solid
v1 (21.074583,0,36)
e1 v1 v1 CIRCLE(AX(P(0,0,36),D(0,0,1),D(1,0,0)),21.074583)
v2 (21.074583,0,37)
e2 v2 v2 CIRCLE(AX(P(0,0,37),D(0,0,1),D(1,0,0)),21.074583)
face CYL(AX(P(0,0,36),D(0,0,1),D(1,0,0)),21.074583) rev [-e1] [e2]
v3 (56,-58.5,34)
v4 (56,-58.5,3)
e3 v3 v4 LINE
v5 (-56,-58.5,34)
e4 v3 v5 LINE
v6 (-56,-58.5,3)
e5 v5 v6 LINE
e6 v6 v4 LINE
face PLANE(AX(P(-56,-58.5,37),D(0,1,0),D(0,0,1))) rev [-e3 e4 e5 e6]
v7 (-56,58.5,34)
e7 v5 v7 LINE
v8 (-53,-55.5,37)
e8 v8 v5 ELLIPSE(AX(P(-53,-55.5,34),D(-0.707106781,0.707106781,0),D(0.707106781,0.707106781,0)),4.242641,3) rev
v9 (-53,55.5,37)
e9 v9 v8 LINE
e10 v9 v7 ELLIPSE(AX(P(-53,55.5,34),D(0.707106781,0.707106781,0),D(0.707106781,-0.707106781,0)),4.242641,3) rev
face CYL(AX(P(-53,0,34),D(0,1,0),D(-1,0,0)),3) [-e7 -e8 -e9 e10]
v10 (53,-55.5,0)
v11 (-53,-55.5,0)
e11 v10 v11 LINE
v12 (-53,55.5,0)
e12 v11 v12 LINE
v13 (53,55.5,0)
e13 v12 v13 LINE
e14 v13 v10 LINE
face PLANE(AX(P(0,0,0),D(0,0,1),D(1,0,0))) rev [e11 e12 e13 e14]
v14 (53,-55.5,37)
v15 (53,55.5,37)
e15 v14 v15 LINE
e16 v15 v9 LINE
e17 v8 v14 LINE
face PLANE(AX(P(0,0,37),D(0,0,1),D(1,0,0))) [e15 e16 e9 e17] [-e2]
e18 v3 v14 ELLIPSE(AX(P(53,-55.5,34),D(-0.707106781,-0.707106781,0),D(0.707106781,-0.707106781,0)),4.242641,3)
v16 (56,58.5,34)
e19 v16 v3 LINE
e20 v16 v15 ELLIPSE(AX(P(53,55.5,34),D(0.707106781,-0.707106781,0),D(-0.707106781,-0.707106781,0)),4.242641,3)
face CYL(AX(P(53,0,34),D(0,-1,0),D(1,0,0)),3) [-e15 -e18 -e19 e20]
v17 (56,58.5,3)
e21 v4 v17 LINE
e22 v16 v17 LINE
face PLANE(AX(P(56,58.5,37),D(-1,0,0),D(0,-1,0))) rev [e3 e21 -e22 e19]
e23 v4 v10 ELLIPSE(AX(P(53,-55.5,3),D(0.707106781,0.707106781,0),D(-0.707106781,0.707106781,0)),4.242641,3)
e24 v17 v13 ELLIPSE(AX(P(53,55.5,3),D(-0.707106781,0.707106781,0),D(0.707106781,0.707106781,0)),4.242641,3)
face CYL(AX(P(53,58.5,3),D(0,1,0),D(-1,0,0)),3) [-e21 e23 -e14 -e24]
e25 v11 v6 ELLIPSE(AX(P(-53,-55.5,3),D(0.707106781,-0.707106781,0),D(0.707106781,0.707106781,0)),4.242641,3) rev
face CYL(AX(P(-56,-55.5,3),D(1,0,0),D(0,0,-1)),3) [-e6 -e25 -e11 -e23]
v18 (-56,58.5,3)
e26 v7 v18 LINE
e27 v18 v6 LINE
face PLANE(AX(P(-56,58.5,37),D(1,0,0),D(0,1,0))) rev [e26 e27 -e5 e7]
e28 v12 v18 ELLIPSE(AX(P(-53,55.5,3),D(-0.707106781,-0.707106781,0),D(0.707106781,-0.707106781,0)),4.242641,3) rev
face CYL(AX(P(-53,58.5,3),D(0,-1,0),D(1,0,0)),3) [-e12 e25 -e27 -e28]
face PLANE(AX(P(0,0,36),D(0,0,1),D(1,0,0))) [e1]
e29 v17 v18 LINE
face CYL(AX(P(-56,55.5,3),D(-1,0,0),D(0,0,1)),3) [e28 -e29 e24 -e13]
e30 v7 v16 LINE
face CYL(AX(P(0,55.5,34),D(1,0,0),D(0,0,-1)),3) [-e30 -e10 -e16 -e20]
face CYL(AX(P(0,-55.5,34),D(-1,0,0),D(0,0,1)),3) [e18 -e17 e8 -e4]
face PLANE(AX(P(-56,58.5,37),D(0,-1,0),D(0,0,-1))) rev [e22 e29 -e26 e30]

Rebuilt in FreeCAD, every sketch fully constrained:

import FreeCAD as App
import Part
import Sketcher
Q = App.Units.Quantity


def edges_at(feature, points):
    """Names of the edges that pass closest to the given points."""
    edges = feature.Shape.Edges
    near = lambda p: min(range(len(edges)), key=lambda i: edges[i].distToShape(Part.Vertex(*p))[0])
    return sorted({f"Edge{near(p) + 1}" for p in points})

doc = App.newDocument("Part")
params = doc.addObject("Spreadsheet::Sheet", "Params")
for row, (alias, value) in enumerate([
    ("sketch1_width", "112 mm"),
    ("sketch1_height", "117 mm"),
    ("pad1_length", "37 mm"),
    ("fillet_radius", "3 mm"),
    ("fillet2_radius", "3 mm"),
    ("pocket1_length", "1 mm"),
], start=1):
    params.set(f"A{row}", alias)
    params.set(f"B{row}", "=" + value)
    params.setAlias(f"B{row}", alias)

body = doc.addObject("PartDesign::Body", "Body")

# Sketch on XY plane
sketch1 = body.newObject("Sketcher::SketchObject", "Sketch")
sketch1.AttachmentSupport = (doc.getObject("XY_Plane"), [""])
sketch1.MapMode = "FlatFace"
sketch1.addGeometry([
    Part.LineSegment(App.Vector(-56, 58, 0), App.Vector(-56, -58, 0)),
    Part.LineSegment(App.Vector(-56, -58, 0), App.Vector(56, -58, 0)),
    Part.LineSegment(App.Vector(56, -58, 0), App.Vector(56, 58, 0)),
    Part.LineSegment(App.Vector(56, 58, 0), App.Vector(-56, 58, 0)),
], False)
sketch1.addConstraint([
    Sketcher.Constraint("Coincident", 0, 2, 1, 1),
    Sketcher.Constraint("Coincident", 1, 2, 2, 1),
    Sketcher.Constraint("Coincident", 2, 2, 3, 1),
    Sketcher.Constraint("Coincident", 3, 2, 0, 1),
    Sketcher.Constraint("Vertical", 0),
    Sketcher.Constraint("Horizontal", 1),
    Sketcher.Constraint("Vertical", 2),
    Sketcher.Constraint("Horizontal", 3),
    Sketcher.Constraint("Symmetric", 0, 2, 2, 2, -1, 1),
    Sketcher.Constraint("DistanceX", 1, 1, 1, 2, Q("112 mm")),
    Sketcher.Constraint("DistanceY", 0, 2, 0, 1, Q("117 mm")),
])
sketch1.setExpression("Constraints[9]", "Params.sketch1_width")
sketch1.setExpression("Constraints[10]", "Params.sketch1_height")
pad1 = body.newObject("PartDesign::Pad", "Pad")
pad1.Profile = sketch1
pad1.setExpression("Length", "Params.pad1_length")
doc.recompute()

fillet = body.newObject("PartDesign::Fillet", "Fillet")
fillet.Base = (pad1, edges_at(pad1, [
    (-56, 0, 37),
    (0, -58.5, 37),
    (56, 0, 37),
    (0, 58.5, 37),
]))
fillet.setExpression("Radius", "Params.fillet_radius")
doc.recompute()

fillet2 = body.newObject("PartDesign::Fillet", "Fillet001")
fillet2.Base = (fillet, edges_at(fillet, [
    (0, -58.5, 0),
    (-56, 0, 0),
    (0, 58.5, 0),
    (56, 0, 0),
]))
fillet2.setExpression("Radius", "Params.fillet2_radius")

# Sketch on XY plane
sketch2 = body.newObject("Sketcher::SketchObject", "Sketch001")
sketch2.AttachmentSupport = (doc.getObject("XY_Plane"), [""])
sketch2.MapMode = "FlatFace"
sketch2.AttachmentOffset = App.Placement(App.Vector(0, 0, 37), App.Rotation())
sketch2.addGeometry(Part.Circle(App.Vector(0, 0, 0), App.Vector(0, 0, 1), 21), False)
sketch2.addConstraint([
    Sketcher.Constraint("Coincident", 0, 3, -1, 1),
    Sketcher.Constraint("Diameter", 0, Q("42.149166 mm")),
])
pocket1 = body.newObject("PartDesign::Pocket", "Pocket")
pocket1.Profile = sketch2
pocket1.setExpression("Length", "Params.pocket1_length")

doc.recompute()
